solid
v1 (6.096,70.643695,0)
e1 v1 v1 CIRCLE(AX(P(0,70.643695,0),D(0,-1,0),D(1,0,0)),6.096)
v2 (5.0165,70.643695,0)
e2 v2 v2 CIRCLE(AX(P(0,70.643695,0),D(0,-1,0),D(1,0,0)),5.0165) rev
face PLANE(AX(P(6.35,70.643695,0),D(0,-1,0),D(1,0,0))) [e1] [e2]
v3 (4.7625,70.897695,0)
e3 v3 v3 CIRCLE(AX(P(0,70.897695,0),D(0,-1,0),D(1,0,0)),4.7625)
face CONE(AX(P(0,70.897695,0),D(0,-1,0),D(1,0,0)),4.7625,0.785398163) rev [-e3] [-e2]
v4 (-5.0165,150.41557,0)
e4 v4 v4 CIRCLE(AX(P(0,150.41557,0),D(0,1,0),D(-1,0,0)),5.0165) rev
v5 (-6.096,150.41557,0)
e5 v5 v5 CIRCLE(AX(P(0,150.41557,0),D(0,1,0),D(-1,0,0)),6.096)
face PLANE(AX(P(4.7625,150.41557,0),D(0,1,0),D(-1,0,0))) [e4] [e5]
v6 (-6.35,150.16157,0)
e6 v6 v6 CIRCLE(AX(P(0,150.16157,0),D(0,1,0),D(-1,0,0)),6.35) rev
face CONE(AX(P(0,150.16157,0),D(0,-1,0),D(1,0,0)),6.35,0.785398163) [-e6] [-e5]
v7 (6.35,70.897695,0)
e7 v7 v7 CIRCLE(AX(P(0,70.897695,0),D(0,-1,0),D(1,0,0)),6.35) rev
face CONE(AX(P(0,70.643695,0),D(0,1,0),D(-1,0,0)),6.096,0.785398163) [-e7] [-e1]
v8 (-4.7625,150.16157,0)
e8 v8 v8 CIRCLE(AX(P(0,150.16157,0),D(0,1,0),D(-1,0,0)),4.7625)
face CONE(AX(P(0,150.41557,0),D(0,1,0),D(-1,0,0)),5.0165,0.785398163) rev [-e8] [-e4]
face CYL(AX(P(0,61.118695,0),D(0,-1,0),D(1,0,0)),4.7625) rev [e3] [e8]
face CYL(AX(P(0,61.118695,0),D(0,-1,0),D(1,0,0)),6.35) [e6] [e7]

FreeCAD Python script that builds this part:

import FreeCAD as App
import Part
import Sketcher

V = App.Vector
Q = App.Units.Quantity


def edges_at(feature, points):
    """Names of the edges that pass closest to the given points."""
    edges = feature.Shape.Edges
    near = lambda p: min(range(len(edges)), key=lambda i: edges[i].distToShape(Part.Vertex(*p))[0])
    return sorted({f"Edge{near(p) + 1}" for p in points})


def add_polygon(sketch, points):
    """Adds a closed chain of lines whose ends are joined by coincident constraints."""
    first, n = sketch.GeometryCount, len(points)
    for a, b in zip(points, points[1:] + points[:1]):
        sketch.addGeometry(Part.LineSegment(App.Vector(*a, 0), App.Vector(*b, 0)), False)
    for i in range(n):
        sketch.addConstraint(Sketcher.Constraint("Coincident", first + i, 2, first + (i + 1) % n, 1))

doc = App.newDocument("Part")
body = doc.addObject("PartDesign::Body", "Body")

sketch1 = body.newObject("Sketcher::SketchObject", "Sketch")
sketch1.AttachmentSupport = (doc.getObject("XY_Plane"), [""])
sketch1.MapMode = "FlatFace"
add_polygon(sketch1, [(4.8, 150.4), (4.8, 70.6), (6.3, 70.6), (6.3, 150.4)])
sketch1.addConstraint([
    Sketcher.Constraint("Vertical", 0),
    Sketcher.Constraint("Horizontal", 1),
    Sketcher.Constraint("Vertical", 2),
    Sketcher.Constraint("Horizontal", 3),
    Sketcher.Constraint("DistanceX", 1, 1, 1, 2, Q("0.0625 in")),
    Sketcher.Constraint("DistanceY", 0, 2, 0, 1, Q("3.140625 in")),
    Sketcher.Constraint("DistanceX", -1, 1, 1, 2, Q("0.25 in")),
    Sketcher.Constraint("DistanceY", -1, 1, 2, 2, Q("150.41557 mm")),
])
revolution = body.newObject("PartDesign::Revolution", "Revolution")
revolution.Profile = sketch1
revolution.ReferenceAxis = (sketch1, ["V_Axis"])
revolution.Angle = 360
doc.recompute()

chamfer = body.newObject("PartDesign::Chamfer", "Chamfer")
chamfer.Base = (revolution, edges_at(revolution, [
    (-6.35, 70.644, 0),
    (-6.35, 150.416, 0),
    (-4.763, 150.416, 0),
    (-4.763, 70.644, 0),
]))
chamfer.Size = Q("0.01 in")

doc.recompute()
